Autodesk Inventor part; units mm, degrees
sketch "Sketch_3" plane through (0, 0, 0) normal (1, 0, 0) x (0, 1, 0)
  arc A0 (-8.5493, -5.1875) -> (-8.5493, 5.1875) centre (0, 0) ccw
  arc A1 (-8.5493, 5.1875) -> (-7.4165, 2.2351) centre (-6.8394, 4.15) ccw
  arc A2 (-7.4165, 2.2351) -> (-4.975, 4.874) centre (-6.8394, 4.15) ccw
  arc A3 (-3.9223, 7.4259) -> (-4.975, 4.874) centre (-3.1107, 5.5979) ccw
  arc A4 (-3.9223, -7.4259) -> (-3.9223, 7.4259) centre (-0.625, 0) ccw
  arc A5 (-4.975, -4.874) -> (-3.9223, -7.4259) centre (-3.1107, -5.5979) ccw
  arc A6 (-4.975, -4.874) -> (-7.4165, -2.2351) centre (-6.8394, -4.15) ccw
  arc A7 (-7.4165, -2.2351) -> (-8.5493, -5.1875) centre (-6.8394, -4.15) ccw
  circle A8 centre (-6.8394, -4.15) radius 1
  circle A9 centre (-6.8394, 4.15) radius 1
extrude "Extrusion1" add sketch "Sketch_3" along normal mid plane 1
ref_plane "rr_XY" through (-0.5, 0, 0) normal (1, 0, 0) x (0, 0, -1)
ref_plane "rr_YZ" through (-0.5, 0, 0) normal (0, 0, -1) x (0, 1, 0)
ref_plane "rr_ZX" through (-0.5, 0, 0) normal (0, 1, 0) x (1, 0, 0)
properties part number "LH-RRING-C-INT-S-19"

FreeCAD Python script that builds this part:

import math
import FreeCAD as App
import Part
import Sketcher
from FreeCAD import Vector

doc = App.newDocument("Part")
params = doc.addObject("Spreadsheet::Sheet", "Params")
for row, (alias, value) in enumerate([
    ("sketch1_diameter", "2 mm"),
    ("sketch1_radius", "2 mm"),
    ("sketch1_radius2", "10 mm"),
    ("pad1_length", "1 mm"),
], start=1):
    params.set(f"A{row}", alias)
    params.set(f"B{row}", "=" + value)
    params.setAlias(f"B{row}", alias)

body = doc.addObject("PartDesign::Body", "Body")

sketch1 = body.newObject("Sketcher::SketchObject", "Sketch")
sketch1.AttachmentSupport = (doc.getObject("YZ_Plane"), [""])
sketch1.MapMode = "FlatFace"
sketch1.addGeometry(Part.ArcOfCircle(Part.Circle(Vector(-6.8, -4.2, 0), Vector(0, 0, 1), 2), math.radians(107), math.radians(211)), False)
sketch1.addGeometry(Part.ArcOfCircle(Part.Circle(Vector(0, 0, 0), Vector(0, 0, 1), 10), math.radians(-149), math.radians(149)), False)
sketch1.addGeometry(Part.ArcOfCircle(Part.Circle(Vector(-6.8, 4.2, 0), Vector(0, 0, 1), 2), math.radians(149), math.radians(253)), False)
sketch1.addGeometry(Part.ArcOfCircle(Part.Circle(Vector(-6.8, 4.2, 0), Vector(0, 0, 1), 2), math.radians(-107), math.radians(21)), False)
sketch1.addGeometry(Part.ArcOfCircle(Part.Circle(Vector(-3.1, 5.6, 0), Vector(0, 0, 1), 2), math.radians(114), math.radians(201)), False)
sketch1.addGeometry(Part.ArcOfCircle(Part.Circle(Vector(-0.6, 0, 0), Vector(0, 0, 1), 8.1), math.radians(-114), math.radians(114)), False)
sketch1.addGeometry(Part.ArcOfCircle(Part.Circle(Vector(-3.1, -5.6, 0), Vector(0, 0, 1), 2), math.radians(159), math.radians(246)), False)
sketch1.addGeometry(Part.ArcOfCircle(Part.Circle(Vector(-6.8, -4.2, 0), Vector(0, 0, 1), 2), math.radians(-21), math.radians(107)), False)
sketch1.addGeometry(Part.Circle(Vector(-6.8, -4.2, 0), Vector(0, 0, 1), 1), False)
sketch1.addGeometry(Part.Circle(Vector(-6.8, 4.2, 0), Vector(0, 0, 1), 1), False)
sketch1.addConstraint(Sketcher.Constraint("Tangent", 0, 2, 1, 1))
sketch1.addConstraint(Sketcher.Constraint("Tangent", 1, 2, 2, 1))
sketch1.addConstraint(Sketcher.Constraint("Tangent", 2, 2, 3, 1))
sketch1.addConstraint(Sketcher.Constraint("Tangent", 3, 2, 4, 2))
sketch1.addConstraint(Sketcher.Constraint("Tangent", 4, 1, 5, 2))
sketch1.addConstraint(Sketcher.Constraint("Tangent", 5, 1, 6, 2))
sketch1.addConstraint(Sketcher.Constraint("Tangent", 6, 1, 7, 1))
sketch1.addConstraint(Sketcher.Constraint("Tangent", 7, 2, 0, 1))
sketch1.addConstraint(Sketcher.Constraint("Coincident", 1, 3, -1, 1))
sketch1.addConstraint(Sketcher.Constraint("Coincident", 8, 3, 0, 3))
sketch1.addConstraint(Sketcher.Constraint("Coincident", 9, 3, 2, 3))
sketch1.addConstraint(Sketcher.Constraint("Equal", 0, 2))
sketch1.addConstraint(Sketcher.Constraint("Equal", 2, 3))
sketch1.addConstraint(Sketcher.Constraint("Equal", 3, 4))
sketch1.addConstraint(Sketcher.Constraint("Equal", 4, 6))
sketch1.addConstraint(Sketcher.Constraint("Equal", 6, 7))
sketch1.addConstraint(Sketcher.Constraint("Equal", 8, 9))
sketch1.addConstraint(Sketcher.Constraint("Symmetric", 4, 3, 6, 3, -1))
sketch1.addConstraint(Sketcher.Constraint("Vertical", 2, 2, 7, 2))
sketch1.addConstraint(Sketcher.Constraint("Diameter", 8, 2.0))
sketch1.addConstraint(Sketcher.Constraint("Radius", 0, 2.0))
sketch1.addConstraint(Sketcher.Constraint("Radius", 1, 10.0))
sketch1.addConstraint(Sketcher.Constraint("Radius", 5, 8.125))
sketch1.addConstraint(Sketcher.Constraint("DistanceY", 0, 3, 2, 3, 8.3))
sketch1.addConstraint(Sketcher.Constraint("DistanceY", -1, 1, 4, 3, 5.598))
sketch1.addConstraint(Sketcher.Constraint("DistanceY", -1, 1, 2, 2, 2.235))
sketch1.setExpression("Constraints[19]", "Params.sketch1_diameter")
sketch1.setExpression("Constraints[20]", "Params.sketch1_radius")
sketch1.setExpression("Constraints[21]", "Params.sketch1_radius2")
pad1 = body.newObject("PartDesign::Pad", "Pad")
pad1.Profile = sketch1
pad1.setExpression("Length", "Params.pad1_length")
pad1.Midplane = True

doc.recompute()
